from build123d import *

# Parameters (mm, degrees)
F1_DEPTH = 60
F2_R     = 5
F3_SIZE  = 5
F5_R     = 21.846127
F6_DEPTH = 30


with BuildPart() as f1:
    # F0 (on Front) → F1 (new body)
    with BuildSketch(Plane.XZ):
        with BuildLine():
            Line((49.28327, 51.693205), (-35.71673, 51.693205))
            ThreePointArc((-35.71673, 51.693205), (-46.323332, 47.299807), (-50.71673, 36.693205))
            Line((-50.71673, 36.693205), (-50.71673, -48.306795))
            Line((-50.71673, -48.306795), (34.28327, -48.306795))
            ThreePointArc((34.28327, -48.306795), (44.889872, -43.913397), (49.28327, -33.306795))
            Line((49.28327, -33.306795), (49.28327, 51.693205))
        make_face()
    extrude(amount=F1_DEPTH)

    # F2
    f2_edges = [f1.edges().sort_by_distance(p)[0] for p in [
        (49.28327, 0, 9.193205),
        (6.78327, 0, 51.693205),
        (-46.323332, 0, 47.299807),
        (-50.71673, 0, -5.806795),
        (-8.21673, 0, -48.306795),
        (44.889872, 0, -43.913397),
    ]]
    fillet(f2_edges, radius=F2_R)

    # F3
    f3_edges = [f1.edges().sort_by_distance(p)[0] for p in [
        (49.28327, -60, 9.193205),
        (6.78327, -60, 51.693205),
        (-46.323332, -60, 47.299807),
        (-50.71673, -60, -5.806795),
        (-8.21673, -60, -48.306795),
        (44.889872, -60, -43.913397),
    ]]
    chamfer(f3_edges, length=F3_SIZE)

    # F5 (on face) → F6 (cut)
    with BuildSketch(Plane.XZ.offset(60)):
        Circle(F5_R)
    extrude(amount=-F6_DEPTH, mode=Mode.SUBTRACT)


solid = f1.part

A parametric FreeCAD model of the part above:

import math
import FreeCAD as App
import Part
import Sketcher
from FreeCAD import Vector


def edges_at(feature, points):
    """Names of the edges that pass closest to the given points."""
    edges = feature.Shape.Edges
    near = lambda p: min(range(len(edges)), key=lambda i: edges[i].distToShape(Part.Vertex(*p))[0])
    return sorted({f"Edge{near(p) + 1}" for p in points})

doc = App.newDocument("Part")
body = doc.addObject("PartDesign::Body", "Body")

sketch1 = doc.addObject("Sketcher::SketchObject", "Sketch")
body.addObject(sketch1)
sketch1.AttachmentSupport = (doc.XZ_Plane, [""])
sketch1.MapMode = "FlatFace"
sketch1.addGeometry(Part.LineSegment(Vector(49, 52, 0), Vector(-36, 52, 0)), False)
sketch1.addGeometry(Part.ArcOfCircle(Part.Circle(Vector(-36, 37, 0), Vector(0, 0, 1), 15), math.radians(90), math.radians(180)), False)
sketch1.addGeometry(Part.LineSegment(Vector(-51, 37, 0), Vector(-51, -48, 0)), False)
sketch1.addGeometry(Part.LineSegment(Vector(-51, -48, 0), Vector(34, -48, 0)), False)
sketch1.addGeometry(Part.ArcOfCircle(Part.Circle(Vector(34, -33, 0), Vector(0, 0, 1), 15), math.radians(-90), math.radians(0)), False)
sketch1.addGeometry(Part.LineSegment(Vector(49, -33, 0), Vector(49, 52, 0)), False)
sketch1.addConstraint(Sketcher.Constraint("Tangent", 0, 2, 1, 1))
sketch1.addConstraint(Sketcher.Constraint("Tangent", 1, 2, 2, 1))
sketch1.addConstraint(Sketcher.Constraint("Coincident", 2, 2, 3, 1))
sketch1.addConstraint(Sketcher.Constraint("Tangent", 3, 2, 4, 1))
sketch1.addConstraint(Sketcher.Constraint("Tangent", 4, 2, 5, 1))
sketch1.addConstraint(Sketcher.Constraint("Coincident", 5, 2, 0, 1))
sketch1.addConstraint(Sketcher.Constraint("Horizontal", 0))
sketch1.addConstraint(Sketcher.Constraint("Vertical", 2))
sketch1.addConstraint(Sketcher.Constraint("Horizontal", 3))
sketch1.addConstraint(Sketcher.Constraint("Vertical", 5))
sketch1.addConstraint(Sketcher.Constraint("Equal", 1, 4))
sketch1.addConstraint(Sketcher.Constraint("Equal", 3, 2))
sketch1.addConstraint(Sketcher.Constraint("Radius", 1, 14.999999))
sketch1.addConstraint(Sketcher.Constraint("DistanceX", 0, 2, 0, 1, 85.0))
sketch1.addConstraint(Sketcher.Constraint("DistanceX", 1, 3, -1, 1, 35.716731))
sketch1.addConstraint(Sketcher.Constraint("DistanceY", -1, 1, 1, 3, 36.693206))
pad1 = doc.addObject("PartDesign::Pad", "Pad")
body.addObject(pad1)
pad1.Profile = sketch1
pad1.Length = 60
doc.recompute()

fillet = doc.addObject("PartDesign::Fillet", "Fillet")
body.addObject(fillet)
fillet.Base = (pad1, edges_at(pad1, [
    (49.283, 0, 9.193),
    (6.783, 0, 51.693),
    (-46.323, 0, 47.3),
    (-50.717, 0, -5.807),
    (-8.217, 0, -48.307),
    (44.89, 0, -43.913),
]))
fillet.Radius = 5
doc.recompute()

chamfer = doc.addObject("PartDesign::Chamfer", "Chamfer")
body.addObject(chamfer)
chamfer.Base = (fillet, edges_at(fillet, [
    (49.283, -60, 9.193),
    (6.783, -60, 51.693),
    (-46.323, -60, 47.3),
    (-50.717, -60, -5.807),
    (-8.217, -60, -48.307),
    (44.89, -60, -43.913),
]))
chamfer.Size = 5

sketch2 = doc.addObject("Sketcher::SketchObject", "Sketch001")
body.addObject(sketch2)
sketch2.AttachmentSupport = (doc.XZ_Plane, [""])
sketch2.MapMode = "FlatFace"
sketch2.AttachmentOffset = App.Placement(Vector(0, 0, 60), App.Rotation())
sketch2.addGeometry(Part.Circle(Vector(0, 0, 0), Vector(0, 0, 1), 22), False)
sketch2.addConstraint(Sketcher.Constraint("Coincident", 0, 3, -1, 1))
sketch2.addConstraint(Sketcher.Constraint("Diameter", 0, 43.692254))
pocket1 = doc.addObject("PartDesign::Pocket", "Pocket")
body.addObject(pocket1)
pocket1.Profile = sketch2
pocket1.Length = 30

doc.recompute()
